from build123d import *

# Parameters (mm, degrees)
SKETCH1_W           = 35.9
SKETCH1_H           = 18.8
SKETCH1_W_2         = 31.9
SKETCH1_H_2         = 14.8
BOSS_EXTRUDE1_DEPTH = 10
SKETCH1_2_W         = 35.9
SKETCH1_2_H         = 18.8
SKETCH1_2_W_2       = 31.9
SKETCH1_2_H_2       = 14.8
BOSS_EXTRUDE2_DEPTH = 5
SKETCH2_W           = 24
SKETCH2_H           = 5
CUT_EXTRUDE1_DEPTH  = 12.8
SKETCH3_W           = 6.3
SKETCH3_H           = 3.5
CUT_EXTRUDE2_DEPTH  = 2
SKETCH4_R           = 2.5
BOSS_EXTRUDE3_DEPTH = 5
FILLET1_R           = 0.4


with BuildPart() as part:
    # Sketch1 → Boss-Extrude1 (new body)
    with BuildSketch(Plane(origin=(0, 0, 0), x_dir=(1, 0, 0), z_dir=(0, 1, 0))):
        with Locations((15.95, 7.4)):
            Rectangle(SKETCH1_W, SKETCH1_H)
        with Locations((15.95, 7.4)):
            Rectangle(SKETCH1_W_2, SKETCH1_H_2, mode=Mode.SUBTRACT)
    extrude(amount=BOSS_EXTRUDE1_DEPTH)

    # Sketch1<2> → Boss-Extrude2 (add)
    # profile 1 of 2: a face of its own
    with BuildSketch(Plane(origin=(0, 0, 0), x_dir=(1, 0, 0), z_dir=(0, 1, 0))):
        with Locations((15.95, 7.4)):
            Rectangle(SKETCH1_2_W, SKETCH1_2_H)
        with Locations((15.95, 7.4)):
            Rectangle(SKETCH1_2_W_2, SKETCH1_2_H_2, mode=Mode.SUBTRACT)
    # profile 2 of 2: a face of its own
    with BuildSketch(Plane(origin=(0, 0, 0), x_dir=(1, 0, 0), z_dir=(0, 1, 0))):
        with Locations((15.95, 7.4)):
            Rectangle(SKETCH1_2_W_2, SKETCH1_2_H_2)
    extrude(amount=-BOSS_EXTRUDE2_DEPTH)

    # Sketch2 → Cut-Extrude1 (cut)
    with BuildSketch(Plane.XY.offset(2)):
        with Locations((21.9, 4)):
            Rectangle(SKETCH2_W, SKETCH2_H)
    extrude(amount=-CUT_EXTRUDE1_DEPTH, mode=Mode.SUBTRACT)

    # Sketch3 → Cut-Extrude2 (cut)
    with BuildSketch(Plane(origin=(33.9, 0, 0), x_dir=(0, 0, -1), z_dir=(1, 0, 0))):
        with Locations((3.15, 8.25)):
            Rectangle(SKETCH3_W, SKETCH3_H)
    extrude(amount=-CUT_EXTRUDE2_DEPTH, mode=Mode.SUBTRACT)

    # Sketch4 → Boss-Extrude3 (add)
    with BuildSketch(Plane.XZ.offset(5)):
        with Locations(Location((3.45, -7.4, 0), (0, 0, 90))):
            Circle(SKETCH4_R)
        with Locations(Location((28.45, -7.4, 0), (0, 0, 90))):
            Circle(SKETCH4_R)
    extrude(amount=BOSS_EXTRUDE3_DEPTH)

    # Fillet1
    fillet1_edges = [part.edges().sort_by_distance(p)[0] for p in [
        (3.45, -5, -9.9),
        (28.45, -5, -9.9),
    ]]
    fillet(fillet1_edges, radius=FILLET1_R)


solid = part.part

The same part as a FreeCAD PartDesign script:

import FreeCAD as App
import Part
import Sketcher
Q = App.Units.Quantity


def edges_at(feature, points):
    """Names of the edges that pass closest to the given points."""
    edges = feature.Shape.Edges
    near = lambda p: min(range(len(edges)), key=lambda i: edges[i].distToShape(Part.Vertex(*p))[0])
    return sorted({f"Edge{near(p) + 1}" for p in points})

doc = App.newDocument("Part")
body = doc.addObject("PartDesign::Body", "Body")

sketch1 = doc.addObject("Sketcher::SketchObject", "Sketch")
body.addObject(sketch1)
sketch1.AttachmentSupport = (doc.XZ_Plane, [""])
sketch1.MapMode = "FlatFace"
sketch1.addGeometry([
    Part.LineSegment(App.Vector(-2, -17, 0), App.Vector(-2, 2, 0)),
    Part.LineSegment(App.Vector(-2, 2, 0), App.Vector(34, 2, 0)),
    Part.LineSegment(App.Vector(34, 2, 0), App.Vector(34, -17, 0)),
    Part.LineSegment(App.Vector(34, -17, 0), App.Vector(-2, -17, 0)),
    Part.LineSegment(App.Vector(32, 0, 0), App.Vector(0, 0, 0)),
    Part.LineSegment(App.Vector(0, 0, 0), App.Vector(0, -15, 0)),
    Part.LineSegment(App.Vector(0, -15, 0), App.Vector(32, -15, 0)),
    Part.LineSegment(App.Vector(32, -15, 0), App.Vector(32, 0, 0)),
], False)
sketch1.addConstraint([
    Sketcher.Constraint("Coincident", 0, 2, 1, 1),
    Sketcher.Constraint("Coincident", 1, 2, 2, 1),
    Sketcher.Constraint("Coincident", 2, 2, 3, 1),
    Sketcher.Constraint("Coincident", 3, 2, 0, 1),
    Sketcher.Constraint("Coincident", 4, 2, 5, 1),
    Sketcher.Constraint("Coincident", 5, 2, 6, 1),
    Sketcher.Constraint("Coincident", 6, 2, 7, 1),
    Sketcher.Constraint("Coincident", 7, 2, 4, 1),
    Sketcher.Constraint("Vertical", 0),
    Sketcher.Constraint("Horizontal", 1),
    Sketcher.Constraint("Vertical", 2),
    Sketcher.Constraint("Horizontal", 3),
    Sketcher.Constraint("Horizontal", 4),
    Sketcher.Constraint("Vertical", 5),
    Sketcher.Constraint("Horizontal", 6),
    Sketcher.Constraint("Vertical", 7),
    Sketcher.Constraint("Coincident", 4, 2, -1, 1),
    Sketcher.Constraint("DistanceX", 1, 1, 1, 2, Q("35.9 mm")),
    Sketcher.Constraint("DistanceX", 4, 2, 4, 1, Q("31.9 mm")),
    Sketcher.Constraint("DistanceY", 0, 1, 0, 2, Q("18.8 mm")),
    Sketcher.Constraint("DistanceY", 5, 2, 5, 1, Q("14.8 mm")),
    Sketcher.Constraint("DistanceX", 0, 2, -1, 1, Q("2 mm")),
    Sketcher.Constraint("DistanceY", -1, 1, 0, 2, Q("2 mm")),
])
pad1 = doc.addObject("PartDesign::Pad", "Pad")
body.addObject(pad1)
pad1.Profile = sketch1
pad1.Length = 10
pad1.Reversed = True

sketch2 = doc.addObject("Sketcher::SketchObject", "Sketch001")
body.addObject(sketch2)
sketch2.AttachmentSupport = (doc.XZ_Plane, [""])
sketch2.MapMode = "FlatFace"
sketch2.addGeometry([
    Part.LineSegment(App.Vector(-2, -17, 0), App.Vector(-2, 2, 0)),
    Part.LineSegment(App.Vector(-2, 2, 0), App.Vector(34, 2, 0)),
    Part.LineSegment(App.Vector(34, 2, 0), App.Vector(34, -17, 0)),
    Part.LineSegment(App.Vector(34, -17, 0), App.Vector(-2, -17, 0)),
], False)
sketch2.addConstraint([
    Sketcher.Constraint("Coincident", 0, 2, 1, 1),
    Sketcher.Constraint("Coincident", 1, 2, 2, 1),
    Sketcher.Constraint("Coincident", 2, 2, 3, 1),
    Sketcher.Constraint("Coincident", 3, 2, 0, 1),
    Sketcher.Constraint("Vertical", 0),
    Sketcher.Constraint("Horizontal", 1),
    Sketcher.Constraint("Vertical", 2),
    Sketcher.Constraint("Horizontal", 3),
    Sketcher.Constraint("DistanceX", 1, 1, 1, 2, Q("35.9 mm")),
    Sketcher.Constraint("DistanceY", 0, 1, 0, 2, Q("18.8 mm")),
    Sketcher.Constraint("DistanceX", 0, 2, -1, 1, Q("2 mm")),
    Sketcher.Constraint("DistanceY", -1, 1, 0, 2, Q("2 mm")),
])
pad2 = doc.addObject("PartDesign::Pad", "Pad001")
body.addObject(pad2)
pad2.Profile = sketch2
pad2.Length = 5

sketch3 = doc.addObject("Sketcher::SketchObject", "Sketch002")
body.addObject(sketch3)
sketch3.AttachmentSupport = (doc.XY_Plane, [""])
sketch3.MapMode = "FlatFace"
sketch3.AttachmentOffset = App.Placement(App.Vector(0, 0, 2), App.Rotation())
sketch3.addGeometry([
    Part.LineSegment(App.Vector(10, 6, 0), App.Vector(10, 2, 0)),
    Part.LineSegment(App.Vector(10, 2, 0), App.Vector(34, 2, 0)),
    Part.LineSegment(App.Vector(34, 2, 0), App.Vector(34, 6, 0)),
    Part.LineSegment(App.Vector(34, 6, 0), App.Vector(10, 6, 0)),
], False)
sketch3.addConstraint([
    Sketcher.Constraint("Coincident", 0, 2, 1, 1),
    Sketcher.Constraint("Coincident", 1, 2, 2, 1),
    Sketcher.Constraint("Coincident", 2, 2, 3, 1),
    Sketcher.Constraint("Coincident", 3, 2, 0, 1),
    Sketcher.Constraint("Vertical", 0),
    Sketcher.Constraint("Horizontal", 1),
    Sketcher.Constraint("Vertical", 2),
    Sketcher.Constraint("Horizontal", 3),
    Sketcher.Constraint("DistanceX", 1, 1, 1, 2, Q("24 mm")),
    Sketcher.Constraint("DistanceY", 0, 2, 0, 1, Q("5 mm")),
    Sketcher.Constraint("DistanceX", -1, 1, 0, 2, Q("9.9 mm")),
    Sketcher.Constraint("DistanceY", -1, 1, 0, 2, Q("1.5 mm")),
])
pocket1 = doc.addObject("PartDesign::Pocket", "Pocket")
body.addObject(pocket1)
pocket1.Profile = sketch3
pocket1.Length = 12.8

sketch4 = doc.addObject("Sketcher::SketchObject", "Sketch003")
body.addObject(sketch4)
sketch4.AttachmentSupport = (doc.YZ_Plane, [""])
sketch4.MapMode = "FlatFace"
sketch4.AttachmentOffset = App.Placement(App.Vector(0, 0, 33.9), App.Rotation())
sketch4.addGeometry([
    Part.LineSegment(App.Vector(10, 0, 0), App.Vector(6.5, 0, 0)),
    Part.LineSegment(App.Vector(6.5, 0, 0), App.Vector(6.5, -6.3, 0)),
    Part.LineSegment(App.Vector(6.5, -6.3, 0), App.Vector(10, -6.3, 0)),
    Part.LineSegment(App.Vector(10, -6.3, 0), App.Vector(10, 0, 0)),
], False)
sketch4.addConstraint([
    Sketcher.Constraint("Coincident", 0, 2, 1, 1),
    Sketcher.Constraint("Coincident", 1, 2, 2, 1),
    Sketcher.Constraint("Coincident", 2, 2, 3, 1),
    Sketcher.Constraint("Coincident", 3, 2, 0, 1),
    Sketcher.Constraint("Horizontal", 0),
    Sketcher.Constraint("Vertical", 1),
    Sketcher.Constraint("Horizontal", 2),
    Sketcher.Constraint("Vertical", 3),
    Sketcher.Constraint("PointOnObject", 0, 2, -1),
    Sketcher.Constraint("DistanceX", 0, 2, 0, 1, Q("3.5 mm")),
    Sketcher.Constraint("DistanceY", 1, 2, 1, 1, Q("6.3 mm")),
    Sketcher.Constraint("DistanceX", -1, 1, 2, 2, Q("10 mm")),
])
pocket2 = doc.addObject("PartDesign::Pocket", "Pocket001")
body.addObject(pocket2)
pocket2.Profile = sketch4
pocket2.Length = 2

sketch5 = doc.addObject("Sketcher::SketchObject", "Sketch004")
body.addObject(sketch5)
sketch5.AttachmentSupport = (doc.XZ_Plane, [""])
sketch5.MapMode = "FlatFace"
sketch5.AttachmentOffset = App.Placement(App.Vector(0, 0, 5), App.Rotation())
sketch5.addGeometry([
    Part.Circle(App.Vector(3.5, -7.4, 0), App.Vector(0, 0, 1), 2.5),
    Part.Circle(App.Vector(28.4, -7.4, 0), App.Vector(0, 0, 1), 2.5),
], False)
sketch5.addConstraint([
    Sketcher.Constraint("Equal", 0, 1),
    Sketcher.Constraint("Horizontal", 0, 3, 1, 3),
    Sketcher.Constraint("Diameter", 0, Q("5 mm")),
    Sketcher.Constraint("DistanceX", 0, 3, 1, 3, Q("25 mm")),
    Sketcher.Constraint("DistanceY", 0, 3, -1, 1, Q("7.4 mm")),
    Sketcher.Constraint("DistanceX", -1, 1, 0, 3, Q("3.45 mm")),
])
pad3 = doc.addObject("PartDesign::Pad", "Pad002")
body.addObject(pad3)
pad3.Profile = sketch5
pad3.Length = 5
doc.recompute()

fillet = doc.addObject("PartDesign::Fillet", "Fillet")
body.addObject(fillet)
fillet.Base = (pad3, edges_at(pad3, [(3.45, -5, -9.9), (28.45, -5, -9.9)]))
fillet.Radius = 0.4

doc.recompute()
